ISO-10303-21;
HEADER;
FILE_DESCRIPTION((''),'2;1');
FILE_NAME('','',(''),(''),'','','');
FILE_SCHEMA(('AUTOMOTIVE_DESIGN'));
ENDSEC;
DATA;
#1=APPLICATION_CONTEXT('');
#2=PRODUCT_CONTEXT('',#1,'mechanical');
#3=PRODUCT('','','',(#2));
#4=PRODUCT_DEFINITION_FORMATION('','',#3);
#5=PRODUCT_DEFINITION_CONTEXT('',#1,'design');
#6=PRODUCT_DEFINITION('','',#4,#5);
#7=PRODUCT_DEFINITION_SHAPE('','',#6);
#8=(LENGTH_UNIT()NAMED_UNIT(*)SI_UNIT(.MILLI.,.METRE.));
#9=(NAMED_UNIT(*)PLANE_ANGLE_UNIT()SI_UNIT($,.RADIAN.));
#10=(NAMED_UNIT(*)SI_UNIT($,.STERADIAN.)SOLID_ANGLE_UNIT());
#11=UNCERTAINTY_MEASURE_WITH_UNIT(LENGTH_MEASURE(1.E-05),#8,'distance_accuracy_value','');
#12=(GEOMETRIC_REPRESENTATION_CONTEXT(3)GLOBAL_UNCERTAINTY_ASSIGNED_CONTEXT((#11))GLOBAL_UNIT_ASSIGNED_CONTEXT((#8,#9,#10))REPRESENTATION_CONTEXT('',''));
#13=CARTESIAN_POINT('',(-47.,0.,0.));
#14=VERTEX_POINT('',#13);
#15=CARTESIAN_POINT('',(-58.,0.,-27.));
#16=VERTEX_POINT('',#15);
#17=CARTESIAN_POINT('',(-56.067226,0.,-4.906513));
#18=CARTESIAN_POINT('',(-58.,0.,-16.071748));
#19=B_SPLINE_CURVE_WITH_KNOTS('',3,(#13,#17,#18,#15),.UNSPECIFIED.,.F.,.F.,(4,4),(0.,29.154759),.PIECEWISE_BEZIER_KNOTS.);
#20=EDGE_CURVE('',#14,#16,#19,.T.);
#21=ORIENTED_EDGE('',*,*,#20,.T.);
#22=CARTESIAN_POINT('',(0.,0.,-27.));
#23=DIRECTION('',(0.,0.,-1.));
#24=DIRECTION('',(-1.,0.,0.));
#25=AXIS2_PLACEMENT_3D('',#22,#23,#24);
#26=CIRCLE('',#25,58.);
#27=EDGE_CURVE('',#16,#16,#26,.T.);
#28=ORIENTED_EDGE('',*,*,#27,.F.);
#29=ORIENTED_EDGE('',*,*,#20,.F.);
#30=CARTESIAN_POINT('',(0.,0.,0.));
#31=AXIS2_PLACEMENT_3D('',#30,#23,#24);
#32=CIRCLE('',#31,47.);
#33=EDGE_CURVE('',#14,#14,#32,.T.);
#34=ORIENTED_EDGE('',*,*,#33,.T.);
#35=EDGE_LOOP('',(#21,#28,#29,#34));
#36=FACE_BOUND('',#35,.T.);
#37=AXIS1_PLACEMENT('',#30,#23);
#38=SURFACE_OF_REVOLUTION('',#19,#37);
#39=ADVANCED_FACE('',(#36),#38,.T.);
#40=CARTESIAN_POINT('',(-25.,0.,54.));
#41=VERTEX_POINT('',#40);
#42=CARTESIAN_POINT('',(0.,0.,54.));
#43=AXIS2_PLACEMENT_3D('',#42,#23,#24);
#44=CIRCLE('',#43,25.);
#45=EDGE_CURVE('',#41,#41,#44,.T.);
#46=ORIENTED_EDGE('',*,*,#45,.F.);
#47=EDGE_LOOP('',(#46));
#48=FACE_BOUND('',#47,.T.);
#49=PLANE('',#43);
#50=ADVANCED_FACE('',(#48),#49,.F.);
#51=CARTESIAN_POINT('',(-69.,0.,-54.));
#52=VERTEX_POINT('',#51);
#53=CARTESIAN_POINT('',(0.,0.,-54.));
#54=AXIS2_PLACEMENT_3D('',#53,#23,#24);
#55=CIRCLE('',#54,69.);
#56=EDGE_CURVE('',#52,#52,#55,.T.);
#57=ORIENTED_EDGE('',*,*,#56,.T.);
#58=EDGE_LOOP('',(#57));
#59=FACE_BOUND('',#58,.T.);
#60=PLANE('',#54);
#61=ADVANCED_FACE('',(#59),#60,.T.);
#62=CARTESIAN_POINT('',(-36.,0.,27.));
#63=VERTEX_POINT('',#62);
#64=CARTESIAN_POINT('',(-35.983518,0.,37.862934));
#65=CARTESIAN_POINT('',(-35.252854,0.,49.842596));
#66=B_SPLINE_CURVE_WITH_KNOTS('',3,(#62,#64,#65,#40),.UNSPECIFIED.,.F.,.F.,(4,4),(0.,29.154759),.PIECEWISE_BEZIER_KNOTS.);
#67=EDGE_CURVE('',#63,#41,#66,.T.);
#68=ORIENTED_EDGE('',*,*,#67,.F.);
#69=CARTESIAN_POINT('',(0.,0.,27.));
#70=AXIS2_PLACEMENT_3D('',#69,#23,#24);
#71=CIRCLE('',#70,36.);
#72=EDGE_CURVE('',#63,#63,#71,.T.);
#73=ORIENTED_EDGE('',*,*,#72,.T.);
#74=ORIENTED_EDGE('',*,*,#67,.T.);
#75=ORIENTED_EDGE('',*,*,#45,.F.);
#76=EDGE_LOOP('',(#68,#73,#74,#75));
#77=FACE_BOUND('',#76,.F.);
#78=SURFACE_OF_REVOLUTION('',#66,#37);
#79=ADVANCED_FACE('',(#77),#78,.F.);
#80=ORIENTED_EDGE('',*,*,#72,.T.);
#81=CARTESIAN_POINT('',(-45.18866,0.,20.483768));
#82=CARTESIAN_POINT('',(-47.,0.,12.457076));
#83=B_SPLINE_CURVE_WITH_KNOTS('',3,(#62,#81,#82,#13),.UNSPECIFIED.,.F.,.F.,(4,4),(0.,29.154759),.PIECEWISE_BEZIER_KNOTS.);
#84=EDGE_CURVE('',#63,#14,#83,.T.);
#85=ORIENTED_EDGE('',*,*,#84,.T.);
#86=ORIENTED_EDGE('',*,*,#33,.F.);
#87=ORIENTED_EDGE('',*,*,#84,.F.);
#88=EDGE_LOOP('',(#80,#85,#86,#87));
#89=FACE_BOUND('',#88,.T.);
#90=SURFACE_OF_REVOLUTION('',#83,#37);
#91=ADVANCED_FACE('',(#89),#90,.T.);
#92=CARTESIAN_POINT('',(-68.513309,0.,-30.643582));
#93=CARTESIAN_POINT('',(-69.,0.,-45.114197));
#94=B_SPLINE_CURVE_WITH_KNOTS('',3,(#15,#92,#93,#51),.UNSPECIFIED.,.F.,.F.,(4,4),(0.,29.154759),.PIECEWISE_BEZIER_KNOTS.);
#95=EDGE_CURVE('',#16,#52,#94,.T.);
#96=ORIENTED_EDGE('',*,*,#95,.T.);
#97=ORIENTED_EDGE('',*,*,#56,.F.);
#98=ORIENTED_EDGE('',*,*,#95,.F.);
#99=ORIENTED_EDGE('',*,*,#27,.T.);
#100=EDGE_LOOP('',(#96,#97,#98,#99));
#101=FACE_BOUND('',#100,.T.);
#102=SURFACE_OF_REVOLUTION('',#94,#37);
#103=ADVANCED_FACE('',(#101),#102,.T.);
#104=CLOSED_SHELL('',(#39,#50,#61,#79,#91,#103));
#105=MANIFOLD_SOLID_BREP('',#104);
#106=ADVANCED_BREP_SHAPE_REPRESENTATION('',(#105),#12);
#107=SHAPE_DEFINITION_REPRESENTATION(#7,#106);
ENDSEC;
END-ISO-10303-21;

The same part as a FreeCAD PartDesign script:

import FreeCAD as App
import Part
import Sketcher
from FreeCAD import Vector

doc = App.newDocument("Part")
body = doc.addObject("PartDesign::Body", "Body")

sketch1 = body.newObject("Sketcher::SketchObject", "Sketch")
sketch1.AttachmentSupport = (doc.getObject("XZ_Plane"), [""])
sketch1.MapMode = "FlatFace"
sketch1.addGeometry(Part.LineSegment(Vector(0, -54, 0), Vector(0, 54, 0)), False)
sketch1.addGeometry(Part.LineSegment(Vector(0, 54, 0), Vector(-25, 54, 0)), False)
sketch1.addGeometry(Part.BSplineCurve([Vector(-36, 27, 0), Vector(-35.983518, 37.862934, 0), Vector(-35.252854, 49.842596, 0), Vector(-25, 54, 0)], [4, 4], [0, 29.154759], False, 3, [1, 1, 1, 1], False), False)
sketch1.addGeometry(Part.BSplineCurve([Vector(-36, 27, 0), Vector(-45.18866, 20.483768, 0), Vector(-47, 12.457076, 0), Vector(-47, 0, 0)], [4, 4], [0, 29.154759], False, 3, [1, 1, 1, 1], False), False)
sketch1.addGeometry(Part.BSplineCurve([Vector(-47, 0, 0), Vector(-56.067226, -4.906513, 0), Vector(-58, -16.071748, 0), Vector(-58, -27, 0)], [4, 4], [0, 29.154759], False, 3, [1, 1, 1, 1], False), False)
sketch1.addGeometry(Part.BSplineCurve([Vector(-58, -27, 0), Vector(-68.513309, -30.643582, 0), Vector(-69, -45.114197, 0), Vector(-69, -54, 0)], [4, 4], [0, 29.154759], False, 3, [1, 1, 1, 1], False), False)
sketch1.addGeometry(Part.LineSegment(Vector(-69, -54, 0), Vector(0, -54, 0)), False)
sketch1.addConstraint(Sketcher.Constraint("Block", 2))
sketch1.addConstraint(Sketcher.Constraint("Block", 3))
sketch1.addConstraint(Sketcher.Constraint("Block", 4))
sketch1.addConstraint(Sketcher.Constraint("Block", 5))
sketch1.addConstraint(Sketcher.Constraint("Coincident", 0, 2, 1, 1))
sketch1.addConstraint(Sketcher.Constraint("Coincident", 1, 2, 2, 2))
sketch1.addConstraint(Sketcher.Constraint("Coincident", 5, 2, 6, 1))
sketch1.addConstraint(Sketcher.Constraint("Coincident", 6, 2, 0, 1))
sketch1.addConstraint(Sketcher.Constraint("Vertical", 0))
sketch1.addConstraint(Sketcher.Constraint("Horizontal", 1))
sketch1.addConstraint(Sketcher.Constraint("Horizontal", 6))
sketch1.addConstraint(Sketcher.Constraint("PointOnObject", 0, 2, -2))
revolution = body.newObject("PartDesign::Revolution", "Revolution")
revolution.Profile = sketch1
revolution.ReferenceAxis = (sketch1, ["V_Axis"])
revolution.Angle = 360

doc.recompute()
